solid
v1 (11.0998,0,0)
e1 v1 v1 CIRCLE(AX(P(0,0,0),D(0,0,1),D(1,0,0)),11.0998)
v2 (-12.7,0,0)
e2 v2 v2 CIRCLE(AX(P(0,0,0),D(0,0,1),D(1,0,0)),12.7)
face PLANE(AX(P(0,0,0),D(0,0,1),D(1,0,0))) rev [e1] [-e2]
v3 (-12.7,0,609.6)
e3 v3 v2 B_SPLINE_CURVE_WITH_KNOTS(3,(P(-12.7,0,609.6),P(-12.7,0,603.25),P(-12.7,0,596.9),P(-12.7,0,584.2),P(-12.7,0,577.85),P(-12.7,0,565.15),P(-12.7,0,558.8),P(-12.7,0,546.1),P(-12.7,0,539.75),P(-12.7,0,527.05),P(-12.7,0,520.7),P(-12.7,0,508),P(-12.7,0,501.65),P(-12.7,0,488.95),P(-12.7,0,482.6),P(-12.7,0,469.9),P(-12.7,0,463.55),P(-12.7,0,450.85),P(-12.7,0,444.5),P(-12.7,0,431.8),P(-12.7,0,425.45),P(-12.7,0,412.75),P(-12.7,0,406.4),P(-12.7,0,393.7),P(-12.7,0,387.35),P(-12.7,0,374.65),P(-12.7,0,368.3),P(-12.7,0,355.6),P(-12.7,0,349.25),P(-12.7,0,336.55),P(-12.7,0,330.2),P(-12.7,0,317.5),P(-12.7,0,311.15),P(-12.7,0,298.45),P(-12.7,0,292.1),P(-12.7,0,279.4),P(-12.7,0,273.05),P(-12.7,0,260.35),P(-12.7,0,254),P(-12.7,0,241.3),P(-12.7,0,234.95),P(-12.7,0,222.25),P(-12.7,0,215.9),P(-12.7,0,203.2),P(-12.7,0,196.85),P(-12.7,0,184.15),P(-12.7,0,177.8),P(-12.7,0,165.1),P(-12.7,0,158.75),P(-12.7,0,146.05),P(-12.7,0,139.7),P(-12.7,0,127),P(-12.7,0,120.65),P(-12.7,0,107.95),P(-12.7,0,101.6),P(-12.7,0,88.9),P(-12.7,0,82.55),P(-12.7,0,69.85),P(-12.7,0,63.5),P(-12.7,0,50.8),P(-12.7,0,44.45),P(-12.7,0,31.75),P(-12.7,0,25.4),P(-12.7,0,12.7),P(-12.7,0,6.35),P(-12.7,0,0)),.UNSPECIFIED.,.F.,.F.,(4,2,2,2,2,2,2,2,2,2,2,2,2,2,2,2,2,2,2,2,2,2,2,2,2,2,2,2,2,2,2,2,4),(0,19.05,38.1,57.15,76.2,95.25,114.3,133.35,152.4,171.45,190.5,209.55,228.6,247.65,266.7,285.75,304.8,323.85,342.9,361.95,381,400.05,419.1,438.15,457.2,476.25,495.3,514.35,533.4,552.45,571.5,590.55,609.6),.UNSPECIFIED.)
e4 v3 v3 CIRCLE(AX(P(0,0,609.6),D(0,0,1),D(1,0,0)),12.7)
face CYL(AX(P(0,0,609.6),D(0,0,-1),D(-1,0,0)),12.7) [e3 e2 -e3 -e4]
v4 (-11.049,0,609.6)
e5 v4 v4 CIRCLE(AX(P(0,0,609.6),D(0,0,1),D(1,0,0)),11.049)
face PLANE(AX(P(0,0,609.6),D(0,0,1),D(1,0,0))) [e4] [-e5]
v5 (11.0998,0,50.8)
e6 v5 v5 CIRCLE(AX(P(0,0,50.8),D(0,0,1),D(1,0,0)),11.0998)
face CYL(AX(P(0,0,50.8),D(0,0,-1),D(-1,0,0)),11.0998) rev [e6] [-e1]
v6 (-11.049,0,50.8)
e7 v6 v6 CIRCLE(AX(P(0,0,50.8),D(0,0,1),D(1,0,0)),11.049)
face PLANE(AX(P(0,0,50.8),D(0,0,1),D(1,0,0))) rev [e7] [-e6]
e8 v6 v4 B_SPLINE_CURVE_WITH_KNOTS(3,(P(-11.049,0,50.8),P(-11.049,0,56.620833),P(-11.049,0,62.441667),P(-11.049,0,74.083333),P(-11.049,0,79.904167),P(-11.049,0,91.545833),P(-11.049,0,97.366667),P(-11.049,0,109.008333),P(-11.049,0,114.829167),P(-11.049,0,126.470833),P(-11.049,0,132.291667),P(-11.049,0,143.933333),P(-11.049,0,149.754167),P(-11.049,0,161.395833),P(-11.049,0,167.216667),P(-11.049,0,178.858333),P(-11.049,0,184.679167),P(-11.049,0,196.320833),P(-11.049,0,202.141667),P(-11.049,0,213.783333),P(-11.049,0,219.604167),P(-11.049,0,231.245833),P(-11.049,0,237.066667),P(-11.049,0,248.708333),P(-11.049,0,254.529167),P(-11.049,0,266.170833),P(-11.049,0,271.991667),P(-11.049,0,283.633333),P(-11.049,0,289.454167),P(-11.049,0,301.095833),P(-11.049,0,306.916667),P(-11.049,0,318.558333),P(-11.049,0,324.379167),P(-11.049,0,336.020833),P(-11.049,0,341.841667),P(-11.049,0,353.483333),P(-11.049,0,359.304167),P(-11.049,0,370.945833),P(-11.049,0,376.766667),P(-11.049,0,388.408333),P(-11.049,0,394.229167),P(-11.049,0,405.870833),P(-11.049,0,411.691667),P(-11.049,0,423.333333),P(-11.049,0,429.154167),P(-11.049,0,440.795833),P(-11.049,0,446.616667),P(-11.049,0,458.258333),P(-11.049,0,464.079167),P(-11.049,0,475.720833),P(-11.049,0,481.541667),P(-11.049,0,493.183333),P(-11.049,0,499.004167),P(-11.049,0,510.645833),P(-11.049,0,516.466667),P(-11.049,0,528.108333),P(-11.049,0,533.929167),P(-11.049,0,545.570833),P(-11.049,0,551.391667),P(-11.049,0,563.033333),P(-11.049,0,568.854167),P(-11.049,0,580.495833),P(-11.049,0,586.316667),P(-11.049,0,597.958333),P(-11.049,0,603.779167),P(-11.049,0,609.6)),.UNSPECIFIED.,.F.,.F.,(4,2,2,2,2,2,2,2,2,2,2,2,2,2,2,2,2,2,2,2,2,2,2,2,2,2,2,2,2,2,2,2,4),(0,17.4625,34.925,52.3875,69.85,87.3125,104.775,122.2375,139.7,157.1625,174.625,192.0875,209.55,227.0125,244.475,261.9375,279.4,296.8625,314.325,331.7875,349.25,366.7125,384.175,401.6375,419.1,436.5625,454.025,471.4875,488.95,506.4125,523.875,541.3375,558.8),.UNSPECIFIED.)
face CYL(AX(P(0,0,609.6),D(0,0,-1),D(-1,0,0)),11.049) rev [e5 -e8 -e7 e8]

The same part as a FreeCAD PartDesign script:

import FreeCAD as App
import Part
import Sketcher

V = App.Vector
Q = App.Units.Quantity

doc = App.newDocument("Part")
params = doc.addObject("Spreadsheet::Sheet", "Params")
for row, (alias, value) in enumerate([
    ("sketch1_diameter", "1 in"),
    ("sketch1_diameter2", "0.87 in"),
    ("pad1_length", "24 in"),
    ("sketch2_diameter", "0.87 in"),
    ("sketch2_diameter2", "0.874 in"),
    ("pocket1_length", "2 in"),
], start=1):
    params.set(f"A{row}", alias)
    params.set(f"B{row}", "=" + value)
    params.setAlias(f"B{row}", alias)

body = doc.addObject("PartDesign::Body", "Body")

# Sketch on XY plane
sketch1 = body.newObject("Sketcher::SketchObject", "Sketch")
sketch1.AttachmentSupport = (doc.getObject("XY_Plane"), [""])
sketch1.MapMode = "FlatFace"
sketch1.addGeometry(Part.Circle(V(0, 0, 0), V(0, 0, 1), 13), False)
sketch1.addGeometry(Part.Circle(V(0, 0, 0), V(0, 0, 1), 11), False)
sketch1.addConstraint(Sketcher.Constraint("Coincident", 0, 3, -1, 1))
sketch1.addConstraint(Sketcher.Constraint("Coincident", 1, 3, -1, 1))
sketch1.addConstraint(Sketcher.Constraint("Diameter", 0, Q("1 in")))
sketch1.addConstraint(Sketcher.Constraint("Diameter", 1, Q("0.87 in")))
sketch1.setExpression("Constraints[2]", "Params.sketch1_diameter")
sketch1.setExpression("Constraints[3]", "Params.sketch1_diameter2")
pad1 = body.newObject("PartDesign::Pad", "Pad")
pad1.Profile = sketch1
pad1.setExpression("Length", "Params.pad1_length")

# Sketch on XY plane
sketch2 = body.newObject("Sketcher::SketchObject", "Sketch001")
sketch2.AttachmentSupport = (doc.getObject("XY_Plane"), [""])
sketch2.MapMode = "FlatFace"
sketch2.addGeometry(Part.Circle(V(0, 0, 0), V(0, 0, 1), 11), False)
sketch2.addGeometry(Part.Circle(V(0, 0, 0), V(0, 0, 1), 11), False)
sketch2.addConstraint(Sketcher.Constraint("Coincident", 0, 3, -1, 1))
sketch2.addConstraint(Sketcher.Constraint("Coincident", 1, 3, -1, 1))
sketch2.addConstraint(Sketcher.Constraint("Diameter", 1, Q("0.87 in")))
sketch2.addConstraint(Sketcher.Constraint("Diameter", 0, Q("0.874 in")))
sketch2.setExpression("Constraints[2]", "Params.sketch2_diameter")
sketch2.setExpression("Constraints[3]", "Params.sketch2_diameter2")
pocket1 = body.newObject("PartDesign::Pocket", "Pocket")
pocket1.Profile = sketch2
pocket1.setExpression("Length", "Params.pocket1_length")
pocket1.Reversed = True

doc.recompute()
